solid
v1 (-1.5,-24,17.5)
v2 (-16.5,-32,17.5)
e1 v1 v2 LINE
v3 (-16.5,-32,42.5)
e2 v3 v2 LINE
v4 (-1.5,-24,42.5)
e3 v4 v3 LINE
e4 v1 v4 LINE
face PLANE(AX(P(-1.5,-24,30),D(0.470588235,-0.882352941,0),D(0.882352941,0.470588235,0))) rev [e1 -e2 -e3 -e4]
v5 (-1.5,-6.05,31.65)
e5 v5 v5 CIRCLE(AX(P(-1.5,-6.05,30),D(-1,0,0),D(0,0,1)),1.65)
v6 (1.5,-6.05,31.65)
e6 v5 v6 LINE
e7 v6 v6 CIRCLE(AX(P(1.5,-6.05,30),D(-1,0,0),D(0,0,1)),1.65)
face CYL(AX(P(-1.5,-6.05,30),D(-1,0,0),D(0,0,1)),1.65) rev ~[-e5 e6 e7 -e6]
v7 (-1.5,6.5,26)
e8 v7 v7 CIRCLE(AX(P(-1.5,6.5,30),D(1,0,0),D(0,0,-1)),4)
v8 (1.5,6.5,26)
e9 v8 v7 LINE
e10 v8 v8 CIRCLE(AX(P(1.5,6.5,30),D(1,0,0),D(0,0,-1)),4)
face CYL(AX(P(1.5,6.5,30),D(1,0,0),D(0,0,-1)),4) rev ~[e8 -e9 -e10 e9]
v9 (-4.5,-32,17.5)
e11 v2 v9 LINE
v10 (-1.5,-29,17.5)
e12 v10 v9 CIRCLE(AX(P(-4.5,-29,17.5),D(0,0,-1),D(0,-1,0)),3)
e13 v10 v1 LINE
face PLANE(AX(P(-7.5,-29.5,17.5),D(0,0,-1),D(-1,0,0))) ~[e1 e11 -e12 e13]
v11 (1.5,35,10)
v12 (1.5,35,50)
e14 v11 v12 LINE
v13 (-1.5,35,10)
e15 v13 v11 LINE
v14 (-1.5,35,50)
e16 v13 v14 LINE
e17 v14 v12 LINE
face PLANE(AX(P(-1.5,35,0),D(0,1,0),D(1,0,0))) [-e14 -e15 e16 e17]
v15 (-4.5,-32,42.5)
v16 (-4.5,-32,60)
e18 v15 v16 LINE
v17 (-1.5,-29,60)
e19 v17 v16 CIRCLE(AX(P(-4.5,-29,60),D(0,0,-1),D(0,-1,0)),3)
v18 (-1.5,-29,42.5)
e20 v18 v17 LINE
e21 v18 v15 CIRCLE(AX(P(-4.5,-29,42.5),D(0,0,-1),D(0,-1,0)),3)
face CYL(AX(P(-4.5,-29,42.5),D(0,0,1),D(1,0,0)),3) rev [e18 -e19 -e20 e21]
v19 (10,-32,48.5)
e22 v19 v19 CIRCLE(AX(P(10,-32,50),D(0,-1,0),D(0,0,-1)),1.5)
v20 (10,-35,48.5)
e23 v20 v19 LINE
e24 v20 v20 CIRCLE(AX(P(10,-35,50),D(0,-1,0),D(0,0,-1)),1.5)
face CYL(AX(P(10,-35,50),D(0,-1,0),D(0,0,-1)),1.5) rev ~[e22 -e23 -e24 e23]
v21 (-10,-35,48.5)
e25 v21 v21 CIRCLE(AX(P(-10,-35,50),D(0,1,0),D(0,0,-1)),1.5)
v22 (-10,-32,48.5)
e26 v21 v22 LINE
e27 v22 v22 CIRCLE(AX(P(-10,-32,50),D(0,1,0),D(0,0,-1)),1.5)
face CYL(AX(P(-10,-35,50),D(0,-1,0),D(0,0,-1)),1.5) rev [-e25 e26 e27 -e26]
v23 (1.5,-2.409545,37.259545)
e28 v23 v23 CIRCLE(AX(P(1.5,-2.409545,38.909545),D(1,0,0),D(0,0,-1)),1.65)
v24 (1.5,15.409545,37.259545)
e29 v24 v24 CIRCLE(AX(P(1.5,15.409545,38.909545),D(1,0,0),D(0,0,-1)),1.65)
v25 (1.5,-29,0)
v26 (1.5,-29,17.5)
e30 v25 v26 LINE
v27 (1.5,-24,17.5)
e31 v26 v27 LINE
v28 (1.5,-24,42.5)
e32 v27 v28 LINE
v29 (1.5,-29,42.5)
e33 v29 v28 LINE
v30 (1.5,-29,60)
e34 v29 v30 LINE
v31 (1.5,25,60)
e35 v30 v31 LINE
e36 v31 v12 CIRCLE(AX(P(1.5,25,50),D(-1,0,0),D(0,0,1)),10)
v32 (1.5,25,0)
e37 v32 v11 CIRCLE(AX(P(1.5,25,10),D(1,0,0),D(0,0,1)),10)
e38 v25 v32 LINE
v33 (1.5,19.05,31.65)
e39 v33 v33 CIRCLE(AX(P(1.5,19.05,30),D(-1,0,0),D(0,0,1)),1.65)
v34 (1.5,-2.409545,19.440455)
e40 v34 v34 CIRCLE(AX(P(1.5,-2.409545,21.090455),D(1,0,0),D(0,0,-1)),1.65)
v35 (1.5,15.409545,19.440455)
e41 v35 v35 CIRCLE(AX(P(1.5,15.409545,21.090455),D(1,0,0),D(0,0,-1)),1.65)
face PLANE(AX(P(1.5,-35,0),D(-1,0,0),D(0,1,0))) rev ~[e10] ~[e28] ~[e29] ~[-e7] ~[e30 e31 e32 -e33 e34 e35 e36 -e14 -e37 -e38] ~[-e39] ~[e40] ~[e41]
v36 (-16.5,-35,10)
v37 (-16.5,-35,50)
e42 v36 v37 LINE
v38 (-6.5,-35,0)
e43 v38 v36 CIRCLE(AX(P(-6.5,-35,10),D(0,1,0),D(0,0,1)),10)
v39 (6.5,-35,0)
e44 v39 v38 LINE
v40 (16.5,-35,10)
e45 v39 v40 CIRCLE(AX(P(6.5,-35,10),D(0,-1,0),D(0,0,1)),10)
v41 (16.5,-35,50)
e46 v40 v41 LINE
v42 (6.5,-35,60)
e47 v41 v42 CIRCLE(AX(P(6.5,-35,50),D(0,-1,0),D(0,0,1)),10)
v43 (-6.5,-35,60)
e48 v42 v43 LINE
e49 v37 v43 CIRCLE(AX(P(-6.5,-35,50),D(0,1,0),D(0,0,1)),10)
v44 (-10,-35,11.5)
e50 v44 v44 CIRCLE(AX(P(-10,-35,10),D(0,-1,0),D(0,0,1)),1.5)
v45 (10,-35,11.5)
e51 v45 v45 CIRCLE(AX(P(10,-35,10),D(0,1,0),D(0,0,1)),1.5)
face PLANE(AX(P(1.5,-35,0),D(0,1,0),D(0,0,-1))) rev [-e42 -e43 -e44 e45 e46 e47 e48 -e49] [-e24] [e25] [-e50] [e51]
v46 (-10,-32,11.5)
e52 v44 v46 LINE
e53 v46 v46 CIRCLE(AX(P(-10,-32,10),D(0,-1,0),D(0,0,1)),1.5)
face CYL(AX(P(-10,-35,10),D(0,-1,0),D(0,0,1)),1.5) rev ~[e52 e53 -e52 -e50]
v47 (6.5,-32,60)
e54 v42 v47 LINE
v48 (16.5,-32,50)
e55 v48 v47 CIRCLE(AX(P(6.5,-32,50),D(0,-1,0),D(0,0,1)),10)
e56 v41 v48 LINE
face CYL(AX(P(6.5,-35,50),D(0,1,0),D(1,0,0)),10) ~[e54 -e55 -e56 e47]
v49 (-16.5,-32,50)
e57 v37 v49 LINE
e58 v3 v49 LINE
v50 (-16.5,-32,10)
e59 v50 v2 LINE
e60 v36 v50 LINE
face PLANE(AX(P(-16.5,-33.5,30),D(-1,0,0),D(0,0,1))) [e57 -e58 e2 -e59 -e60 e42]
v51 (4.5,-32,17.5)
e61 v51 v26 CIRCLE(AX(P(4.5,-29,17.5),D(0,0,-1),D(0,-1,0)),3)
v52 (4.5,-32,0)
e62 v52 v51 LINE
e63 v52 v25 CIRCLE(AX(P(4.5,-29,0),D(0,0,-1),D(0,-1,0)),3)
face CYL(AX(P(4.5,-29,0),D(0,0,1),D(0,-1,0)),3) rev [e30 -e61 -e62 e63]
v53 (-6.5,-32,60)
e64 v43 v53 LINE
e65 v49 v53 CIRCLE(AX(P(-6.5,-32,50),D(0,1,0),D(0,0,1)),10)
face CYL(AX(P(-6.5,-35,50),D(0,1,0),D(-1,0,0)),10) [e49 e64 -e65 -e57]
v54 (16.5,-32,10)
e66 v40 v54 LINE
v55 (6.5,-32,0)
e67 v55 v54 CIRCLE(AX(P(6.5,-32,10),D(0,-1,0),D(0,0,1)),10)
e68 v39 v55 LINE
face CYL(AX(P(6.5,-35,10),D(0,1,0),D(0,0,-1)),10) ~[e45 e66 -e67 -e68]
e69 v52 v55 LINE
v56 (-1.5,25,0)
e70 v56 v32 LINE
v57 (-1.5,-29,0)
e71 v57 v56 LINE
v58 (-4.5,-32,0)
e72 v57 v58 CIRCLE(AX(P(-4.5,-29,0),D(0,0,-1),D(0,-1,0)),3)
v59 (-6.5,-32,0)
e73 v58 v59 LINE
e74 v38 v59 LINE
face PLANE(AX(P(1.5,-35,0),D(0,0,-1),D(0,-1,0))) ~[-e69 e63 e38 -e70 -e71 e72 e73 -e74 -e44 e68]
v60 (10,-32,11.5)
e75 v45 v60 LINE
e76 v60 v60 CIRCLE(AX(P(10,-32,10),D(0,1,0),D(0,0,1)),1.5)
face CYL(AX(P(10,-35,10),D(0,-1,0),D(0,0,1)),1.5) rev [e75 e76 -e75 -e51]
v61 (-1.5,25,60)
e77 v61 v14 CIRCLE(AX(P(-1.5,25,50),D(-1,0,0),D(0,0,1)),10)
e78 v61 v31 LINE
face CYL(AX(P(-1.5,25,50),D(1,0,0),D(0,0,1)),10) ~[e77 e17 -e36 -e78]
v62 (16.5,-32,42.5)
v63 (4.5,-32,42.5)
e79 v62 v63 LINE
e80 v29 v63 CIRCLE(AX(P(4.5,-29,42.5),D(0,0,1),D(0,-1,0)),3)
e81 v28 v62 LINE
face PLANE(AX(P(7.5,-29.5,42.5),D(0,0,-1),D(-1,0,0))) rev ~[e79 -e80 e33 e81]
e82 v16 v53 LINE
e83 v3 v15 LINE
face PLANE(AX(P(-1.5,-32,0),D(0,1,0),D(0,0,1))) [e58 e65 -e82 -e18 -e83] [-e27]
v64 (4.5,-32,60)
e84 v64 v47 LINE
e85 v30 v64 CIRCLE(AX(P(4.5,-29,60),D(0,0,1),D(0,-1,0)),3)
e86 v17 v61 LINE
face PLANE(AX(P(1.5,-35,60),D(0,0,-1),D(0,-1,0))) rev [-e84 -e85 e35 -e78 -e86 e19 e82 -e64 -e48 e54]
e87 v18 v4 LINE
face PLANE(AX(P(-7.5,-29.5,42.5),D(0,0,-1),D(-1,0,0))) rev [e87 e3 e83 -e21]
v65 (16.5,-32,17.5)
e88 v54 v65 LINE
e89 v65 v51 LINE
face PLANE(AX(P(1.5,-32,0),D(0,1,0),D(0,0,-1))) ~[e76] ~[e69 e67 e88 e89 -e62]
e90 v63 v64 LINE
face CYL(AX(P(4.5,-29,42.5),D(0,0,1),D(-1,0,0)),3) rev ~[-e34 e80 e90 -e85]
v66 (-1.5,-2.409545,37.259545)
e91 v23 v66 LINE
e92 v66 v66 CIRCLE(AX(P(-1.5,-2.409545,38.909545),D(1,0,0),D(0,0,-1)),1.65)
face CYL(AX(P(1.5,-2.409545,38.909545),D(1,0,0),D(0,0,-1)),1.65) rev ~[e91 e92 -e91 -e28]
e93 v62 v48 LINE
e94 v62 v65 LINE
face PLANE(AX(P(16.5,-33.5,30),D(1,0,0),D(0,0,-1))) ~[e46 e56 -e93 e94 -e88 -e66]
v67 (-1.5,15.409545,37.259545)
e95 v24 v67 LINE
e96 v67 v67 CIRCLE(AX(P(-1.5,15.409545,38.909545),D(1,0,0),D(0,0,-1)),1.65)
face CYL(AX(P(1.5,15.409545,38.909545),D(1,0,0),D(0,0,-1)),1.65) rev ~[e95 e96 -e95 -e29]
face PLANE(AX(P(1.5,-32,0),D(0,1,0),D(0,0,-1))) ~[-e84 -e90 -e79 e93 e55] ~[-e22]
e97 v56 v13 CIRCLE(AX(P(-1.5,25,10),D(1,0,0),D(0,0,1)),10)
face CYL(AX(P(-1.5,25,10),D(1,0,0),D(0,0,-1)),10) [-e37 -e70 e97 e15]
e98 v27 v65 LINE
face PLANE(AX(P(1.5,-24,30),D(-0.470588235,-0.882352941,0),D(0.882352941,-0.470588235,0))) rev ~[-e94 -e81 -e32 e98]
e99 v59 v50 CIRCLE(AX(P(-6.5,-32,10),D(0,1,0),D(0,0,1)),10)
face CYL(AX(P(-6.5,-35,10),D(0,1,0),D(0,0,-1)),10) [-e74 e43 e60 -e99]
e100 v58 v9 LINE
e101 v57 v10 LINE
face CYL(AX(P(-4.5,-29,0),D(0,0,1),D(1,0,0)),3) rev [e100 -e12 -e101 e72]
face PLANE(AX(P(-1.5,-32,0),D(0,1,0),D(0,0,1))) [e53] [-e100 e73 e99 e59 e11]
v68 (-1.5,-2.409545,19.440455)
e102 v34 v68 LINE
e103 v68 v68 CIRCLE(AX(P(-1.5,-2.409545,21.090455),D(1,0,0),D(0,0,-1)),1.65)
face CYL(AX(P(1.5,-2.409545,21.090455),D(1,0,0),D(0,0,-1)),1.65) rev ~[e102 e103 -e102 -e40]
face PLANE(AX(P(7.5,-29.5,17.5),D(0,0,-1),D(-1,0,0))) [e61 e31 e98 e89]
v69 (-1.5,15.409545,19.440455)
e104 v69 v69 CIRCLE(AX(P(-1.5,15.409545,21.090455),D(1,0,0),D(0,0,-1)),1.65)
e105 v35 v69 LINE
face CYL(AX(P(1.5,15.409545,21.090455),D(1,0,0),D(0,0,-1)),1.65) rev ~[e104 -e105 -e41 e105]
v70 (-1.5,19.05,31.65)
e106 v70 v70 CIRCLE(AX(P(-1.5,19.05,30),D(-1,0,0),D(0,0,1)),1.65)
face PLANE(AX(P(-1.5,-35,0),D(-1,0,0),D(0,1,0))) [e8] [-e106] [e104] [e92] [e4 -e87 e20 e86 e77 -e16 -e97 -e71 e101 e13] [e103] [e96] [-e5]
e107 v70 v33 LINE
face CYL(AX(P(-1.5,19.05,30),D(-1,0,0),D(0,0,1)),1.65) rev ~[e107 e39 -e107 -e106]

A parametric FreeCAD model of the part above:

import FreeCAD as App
import Part
import Sketcher


def edges_at(feature, points):
    """Names of the edges that pass closest to the given points."""
    edges = feature.Shape.Edges
    near = lambda p: min(range(len(edges)), key=lambda i: edges[i].distToShape(Part.Vertex(*p))[0])
    return sorted({f"Edge{near(p) + 1}" for p in points})

doc = App.newDocument("Part")
body = doc.addObject("PartDesign::Body", "Body")

# Sketch on XY plane
sketch1 = body.newObject("Sketcher::SketchObject", "Sketch")
sketch1.AttachmentSupport = (doc.getObject("XY_Plane"), [""])
sketch1.MapMode = "FlatFace"
sketch1.addGeometry(Part.LineSegment(App.Vector(-1.5, 35, 0), App.Vector(-1.5, -35, 0)), False)
sketch1.addGeometry(Part.LineSegment(App.Vector(-1.5, -35, 0), App.Vector(1.5, -35, 0)), False)
sketch1.addGeometry(Part.LineSegment(App.Vector(1.5, -35, 0), App.Vector(1.5, 35, 0)), False)
sketch1.addGeometry(Part.LineSegment(App.Vector(1.5, 35, 0), App.Vector(-1.5, 35, 0)), False)
sketch1.addConstraint(Sketcher.Constraint("Coincident", 0, 2, 1, 1))
sketch1.addConstraint(Sketcher.Constraint("Coincident", 1, 2, 2, 1))
sketch1.addConstraint(Sketcher.Constraint("Coincident", 2, 2, 3, 1))
sketch1.addConstraint(Sketcher.Constraint("Coincident", 3, 2, 0, 1))
sketch1.addConstraint(Sketcher.Constraint("Vertical", 0))
sketch1.addConstraint(Sketcher.Constraint("Horizontal", 1))
sketch1.addConstraint(Sketcher.Constraint("Vertical", 2))
sketch1.addConstraint(Sketcher.Constraint("Horizontal", 3))
sketch1.addConstraint(Sketcher.Constraint("Symmetric", 0, 2, 2, 2, -1, 1))
sketch1.addConstraint(Sketcher.Constraint("DistanceX", 1, 1, 1, 2, 3.0))
sketch1.addConstraint(Sketcher.Constraint("DistanceY", 0, 2, 0, 1, 70.0))
pad1 = body.newObject("PartDesign::Pad", "Pad")
pad1.Profile = sketch1
pad1.Length = 60

# Sketch on YZ plane
sketch2 = body.newObject("Sketcher::SketchObject", "Sketch001")
sketch2.AttachmentSupport = (doc.getObject("YZ_Plane"), [""])
sketch2.MapMode = "FlatFace"
sketch2.AttachmentOffset = App.Placement(App.Vector(0, 0, -1.5), App.Rotation())
sketch2.addGeometry(Part.LineSegment(App.Vector(-32, 0, 0), App.Vector(-35, 0, 0)), False)
sketch2.addGeometry(Part.LineSegment(App.Vector(-35, 0, 0), App.Vector(-35, 60, 0)), False)
sketch2.addGeometry(Part.LineSegment(App.Vector(-35, 60, 0), App.Vector(-32, 60, 0)), False)
sketch2.addGeometry(Part.LineSegment(App.Vector(-32, 60, 0), App.Vector(-32, 0, 0)), False)
sketch2.addConstraint(Sketcher.Constraint("Coincident", 0, 2, 1, 1))
sketch2.addConstraint(Sketcher.Constraint("Coincident", 1, 2, 2, 1))
sketch2.addConstraint(Sketcher.Constraint("Coincident", 2, 2, 3, 1))
sketch2.addConstraint(Sketcher.Constraint("Coincident", 3, 2, 0, 1))
sketch2.addConstraint(Sketcher.Constraint("Horizontal", 0))
sketch2.addConstraint(Sketcher.Constraint("Vertical", 1))
sketch2.addConstraint(Sketcher.Constraint("Horizontal", 2))
sketch2.addConstraint(Sketcher.Constraint("Vertical", 3))
sketch2.addConstraint(Sketcher.Constraint("PointOnObject", 0, 2, -1))
sketch2.addConstraint(Sketcher.Constraint("DistanceX", 0, 2, 0, 1, 3.0))
sketch2.addConstraint(Sketcher.Constraint("DistanceY", 1, 1, 1, 2, 60.0))
sketch2.addConstraint(Sketcher.Constraint("DistanceX", 0, 2, -1, 1, 35.0))
pad2 = body.newObject("PartDesign::Pad", "Pad001")
pad2.Profile = sketch2
pad2.Length = 15
pad2.Reversed = True
doc.recompute()

mirrored = body.newObject("PartDesign::Mirrored", "Mirrored")
mirrored.Originals = [pad2]
mirrored.MirrorPlane = (doc.getObject("YZ_Plane"), [""])
body.Tip = mirrored
doc.recompute()

fillet = body.newObject("PartDesign::Fillet", "Fillet")
fillet.Base = (mirrored, edges_at(mirrored, [(0, 35, 0), (0, 35, 60)]))
fillet.Radius = 10

# Sketch on YZ plane
sketch3 = body.newObject("Sketcher::SketchObject", "Sketch002")
sketch3.AttachmentSupport = (doc.getObject("YZ_Plane"), [""])
sketch3.MapMode = "FlatFace"
sketch3.AttachmentOffset = App.Placement(App.Vector(0, 0, 1.5), App.Rotation())
sketch3.addGeometry(Part.Circle(App.Vector(-2.4, 38.9, 0), App.Vector(0, 0, 1), 1.6), False)
sketch3.addConstraint(Sketcher.Constraint("Diameter", 0, 3.3))
sketch3.addConstraint(Sketcher.Constraint("DistanceX", 0, 3, -1, 1, 2.409545))
sketch3.addConstraint(Sketcher.Constraint("DistanceY", -1, 1, 0, 3, 38.909545))
pocket1 = body.newObject("PartDesign::Pocket", "Pocket")
pocket1.Profile = sketch3
pocket1.Type = "UpToFirst"

# Sketch on YZ plane
sketch4 = body.newObject("Sketcher::SketchObject", "Sketch003")
sketch4.AttachmentSupport = (doc.getObject("YZ_Plane"), [""])
sketch4.MapMode = "FlatFace"
sketch4.AttachmentOffset = App.Placement(App.Vector(0, 0, 1.5), App.Rotation())
sketch4.addGeometry(Part.Circle(App.Vector(-2.4, 21.1, 0), App.Vector(0, 0, 1), 1.6), False)
sketch4.addConstraint(Sketcher.Constraint("Diameter", 0, 3.3))
sketch4.addConstraint(Sketcher.Constraint("DistanceX", 0, 3, -1, 1, 2.409545))
sketch4.addConstraint(Sketcher.Constraint("DistanceY", -1, 1, 0, 3, 21.090455))
pocket2 = body.newObject("PartDesign::Pocket", "Pocket001")
pocket2.Profile = sketch4
pocket2.Type = "UpToFirst"

# Sketch on YZ plane
sketch5 = body.newObject("Sketcher::SketchObject", "Sketch004")
sketch5.AttachmentSupport = (doc.getObject("YZ_Plane"), [""])
sketch5.MapMode = "FlatFace"
sketch5.AttachmentOffset = App.Placement(App.Vector(0, 0, 1.5), App.Rotation())
sketch5.addGeometry(Part.Circle(App.Vector(6.5, 30, 0), App.Vector(0, 0, 1), 4), False)
sketch5.addConstraint(Sketcher.Constraint("Diameter", 0, 8.0))
sketch5.addConstraint(Sketcher.Constraint("DistanceY", -1, 1, 0, 3, 30.0))
sketch5.addConstraint(Sketcher.Constraint("DistanceX", -1, 1, 0, 3, 6.5))
pocket3 = body.newObject("PartDesign::Pocket", "Pocket002")
pocket3.Profile = sketch5
pocket3.Type = "UpToFirst"

# Sketch on YZ plane
sketch6 = body.newObject("Sketcher::SketchObject", "Sketch005")
sketch6.AttachmentSupport = (doc.getObject("YZ_Plane"), [""])
sketch6.MapMode = "FlatFace"
sketch6.AttachmentOffset = App.Placement(App.Vector(0, 0, 1.5), App.Rotation())
sketch6.addGeometry(Part.Circle(App.Vector(15.4, 38.9, 0), App.Vector(0, 0, 1), 1.6), False)
sketch6.addConstraint(Sketcher.Constraint("Diameter", 0, 3.3))
sketch6.addConstraint(Sketcher.Constraint("DistanceX", -1, 1, 0, 3, 15.409545))
sketch6.addConstraint(Sketcher.Constraint("DistanceY", -1, 1, 0, 3, 38.909545))
pocket4 = body.newObject("PartDesign::Pocket", "Pocket003")
pocket4.Profile = sketch6
pocket4.Type = "UpToFirst"

# Sketch on YZ plane
sketch7 = body.newObject("Sketcher::SketchObject", "Sketch006")
sketch7.AttachmentSupport = (doc.getObject("YZ_Plane"), [""])
sketch7.MapMode = "FlatFace"
sketch7.AttachmentOffset = App.Placement(App.Vector(0, 0, 1.5), App.Rotation())
sketch7.addGeometry(Part.Circle(App.Vector(15.4, 21.1, 0), App.Vector(0, 0, 1), 1.6), False)
sketch7.addConstraint(Sketcher.Constraint("Diameter", 0, 3.3))
sketch7.addConstraint(Sketcher.Constraint("DistanceX", -1, 1, 0, 3, 15.409545))
sketch7.addConstraint(Sketcher.Constraint("DistanceY", -1, 1, 0, 3, 21.090455))
pocket5 = body.newObject("PartDesign::Pocket", "Pocket004")
pocket5.Profile = sketch7
pocket5.Type = "UpToFirst"

# Sketch on XZ plane
sketch8 = body.newObject("Sketcher::SketchObject", "Sketch007")
sketch8.AttachmentSupport = (doc.getObject("XZ_Plane"), [""])
sketch8.MapMode = "FlatFace"
sketch8.AttachmentOffset = App.Placement(App.Vector(0, 0, 35), App.Rotation())
sketch8.addGeometry(Part.Circle(App.Vector(10, 10, 0), App.Vector(0, 0, 1), 1.5), False)
sketch8.addConstraint(Sketcher.Constraint("Diameter", 0, 3.0))
sketch8.addConstraint(Sketcher.Constraint("DistanceX", -1, 1, 0, 3, 10.0))
sketch8.addConstraint(Sketcher.Constraint("DistanceY", -1, 1, 0, 3, 10.0))
pocket6 = body.newObject("PartDesign::Pocket", "Pocket005")
pocket6.Profile = sketch8
pocket6.Length = 3
doc.recompute()

fillet2 = body.newObject("PartDesign::Fillet", "Fillet001")
fillet2.Base = (pocket6, edges_at(pocket6, [
    (-16.5, -33.5, 0),
    (-16.5, -33.5, 60),
    (16.5, -33.5, 60),
    (16.5, -33.5, 0),
]))
fillet2.Radius = 10
doc.recompute()

mirrored2 = body.newObject("PartDesign::Mirrored", "Mirrored001")
mirrored2.Originals = [pocket6]
mirrored2.MirrorPlane = (doc.getObject("YZ_Plane"), [""])
body.Tip = mirrored2
doc.recompute()

mirrored3 = body.newObject("PartDesign::Mirrored", "Mirrored002")
mirrored3.Originals = [pocket6]
mirrored3.MirrorPlane = (doc.getObject("XZ_Plane"), [""])
body.Tip = mirrored3
doc.recompute()

datumplane = body.newObject("PartDesign::Plane", "DatumPlane")
datumplane.AttachmentSupport = (doc.getObject("XY_Plane"), [""])
datumplane.MapMode = "FlatFace"
datumplane.AttachmentOffset = App.Placement(App.Vector(0, 0, 30), App.Rotation())
mirrored4 = body.newObject("PartDesign::Mirrored", "Mirrored003")
mirrored4.Originals = [pocket6]
mirrored4.MirrorPlane = (datumplane, [""])
body.Tip = mirrored4

# Sketch on XZ plane
sketch9 = body.newObject("Sketcher::SketchObject", "Sketch008")
sketch9.AttachmentSupport = (doc.getObject("XZ_Plane"), [""])
sketch9.MapMode = "FlatFace"
sketch9.AttachmentOffset = App.Placement(App.Vector(0, 0, 35), App.Rotation())
sketch9.addGeometry(Part.Circle(App.Vector(-10, 50, 0), App.Vector(0, 0, 1), 1.5), False)
sketch9.addConstraint(Sketcher.Constraint("Diameter", 0, 3.0))
sketch9.addConstraint(Sketcher.Constraint("DistanceX", 0, 3, -1, 1, 10.0))
sketch9.addConstraint(Sketcher.Constraint("DistanceY", -1, 1, 0, 3, 50.0))
pocket7 = body.newObject("PartDesign::Pocket", "Pocket006")
pocket7.Profile = sketch9
pocket7.Length = 3

# Sketch on XZ plane
sketch10 = body.newObject("Sketcher::SketchObject", "Sketch009")
sketch10.AttachmentSupport = (doc.getObject("XZ_Plane"), [""])
sketch10.MapMode = "FlatFace"
sketch10.AttachmentOffset = App.Placement(App.Vector(0, 0, -35), App.Rotation())
sketch10.addGeometry(Part.Circle(App.Vector(10, 50, 0), App.Vector(0, 0, 1), 1.5), False)
sketch10.addConstraint(Sketcher.Constraint("Diameter", 0, 3.0))
sketch10.addConstraint(Sketcher.Constraint("DistanceX", -1, 1, 0, 3, 10.0))
sketch10.addConstraint(Sketcher.Constraint("DistanceY", -1, 1, 0, 3, 50.0))
pocket8 = body.newObject("PartDesign::Pocket", "Pocket007")
pocket8.Profile = sketch10
pocket8.Length = 3
pocket8.Reversed = True

# Sketch on YZ plane
sketch11 = body.newObject("Sketcher::SketchObject", "Sketch010")
sketch11.AttachmentSupport = (doc.getObject("YZ_Plane"), [""])
sketch11.MapMode = "FlatFace"
sketch11.AttachmentOffset = App.Placement(App.Vector(0, 0, -1.5), App.Rotation())
sketch11.addGeometry(Part.Circle(App.Vector(19.1, 30, 0), App.Vector(0, 0, 1), 1.6), False)
sketch11.addGeometry(Part.Circle(App.Vector(-6, 30, 0), App.Vector(0, 0, 1), 1.6), False)
sketch11.addConstraint(Sketcher.Constraint("Equal", 0, 1))
sketch11.addConstraint(Sketcher.Constraint("Horizontal", 0, 3, 1, 3))
sketch11.addConstraint(Sketcher.Constraint("Diameter", 0, 3.3))
sketch11.addConstraint(Sketcher.Constraint("DistanceY", -1, 1, 0, 3, 30.0))
sketch11.addConstraint(Sketcher.Constraint("DistanceX", 1, 3, 0, 3, 25.1))
sketch11.addConstraint(Sketcher.Constraint("DistanceX", -1, 1, 0, 3, 19.05))
pocket9 = body.newObject("PartDesign::Pocket", "Pocket008")
pocket9.Profile = sketch11
pocket9.Length = 10
pocket9.Reversed = True

# Sketch on XY plane
sketch12 = body.newObject("Sketcher::SketchObject", "Sketch011")
sketch12.AttachmentSupport = (doc.getObject("XY_Plane"), [""])
sketch12.MapMode = "FlatFace"
sketch12.AttachmentOffset = App.Placement(App.Vector(0, 0, 30), App.Rotation())
sketch12.addGeometry(Part.LineSegment(App.Vector(16, -32, 0), App.Vector(2, -24, 0)), False)
sketch12.addGeometry(Part.LineSegment(App.Vector(2, -24, 0), App.Vector(2, -32, 0)), False)
sketch12.addGeometry(Part.LineSegment(App.Vector(2, -32, 0), App.Vector(16, -32, 0)), False)
sketch12.addConstraint(Sketcher.Constraint("Coincident", 0, 2, 1, 1))
sketch12.addConstraint(Sketcher.Constraint("Coincident", 1, 2, 2, 1))
sketch12.addConstraint(Sketcher.Constraint("Coincident", 2, 2, 0, 1))
sketch12.addConstraint(Sketcher.Constraint("Vertical", 1))
sketch12.addConstraint(Sketcher.Constraint("Horizontal", 2))
sketch12.addConstraint(Sketcher.Constraint("DistanceX", 2, 1, 2, 2, 15.0))
sketch12.addConstraint(Sketcher.Constraint("DistanceY", 1, 2, 1, 1, 8.0))
sketch12.addConstraint(Sketcher.Constraint("DistanceY", 0, 2, -1, 1, 24.0))
sketch12.addConstraint(Sketcher.Constraint("DistanceX", -1, 1, 0, 2, 1.5))
pad3 = body.newObject("PartDesign::Pad", "Pad002")
pad3.Profile = sketch12
pad3.Length = 25
pad3.Midplane = True
doc.recompute()

mirrored5 = body.newObject("PartDesign::Mirrored", "Mirrored004")
mirrored5.Originals = [pad3]
mirrored5.MirrorPlane = (doc.getObject("YZ_Plane"), [""])
body.Tip = mirrored5
doc.recompute()

fillet3 = body.newObject("PartDesign::Fillet", "Fillet002")
fillet3.Base = (mirrored5, edges_at(mirrored5, [
    (1.5, -32, 51.25),
    (-1.5, -32, 51.25),
    (-1.5, -32, 8.75),
    (1.5, -32, 8.75),
]))
fillet3.Radius = 3

doc.recompute()
